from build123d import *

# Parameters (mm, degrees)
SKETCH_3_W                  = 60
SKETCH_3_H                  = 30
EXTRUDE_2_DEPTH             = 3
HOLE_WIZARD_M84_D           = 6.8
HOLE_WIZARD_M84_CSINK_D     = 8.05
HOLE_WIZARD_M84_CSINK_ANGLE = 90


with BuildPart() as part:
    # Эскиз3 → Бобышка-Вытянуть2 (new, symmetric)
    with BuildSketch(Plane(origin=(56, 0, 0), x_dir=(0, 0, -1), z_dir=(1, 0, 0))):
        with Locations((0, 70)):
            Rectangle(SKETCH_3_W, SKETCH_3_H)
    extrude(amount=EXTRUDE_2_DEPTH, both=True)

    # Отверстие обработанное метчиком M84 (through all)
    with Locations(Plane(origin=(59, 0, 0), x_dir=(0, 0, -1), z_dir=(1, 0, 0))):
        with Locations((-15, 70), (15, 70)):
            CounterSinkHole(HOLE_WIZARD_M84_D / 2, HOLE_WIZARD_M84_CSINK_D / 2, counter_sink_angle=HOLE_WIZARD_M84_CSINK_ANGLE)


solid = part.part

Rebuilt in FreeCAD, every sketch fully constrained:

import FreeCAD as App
import Part
import Sketcher
from FreeCAD import Vector


def add_polygon(sketch, points):
    """Adds a closed chain of lines whose ends are joined by coincident constraints."""
    first, n = sketch.GeometryCount, len(points)
    for a, b in zip(points, points[1:] + points[:1]):
        sketch.addGeometry(Part.LineSegment(App.Vector(*a, 0), App.Vector(*b, 0)), False)
    for i in range(n):
        sketch.addConstraint(Sketcher.Constraint("Coincident", first + i, 2, first + (i + 1) % n, 1))

doc = App.newDocument("Part")
body = doc.addObject("PartDesign::Body", "Body")

# Sketch on YZ plane
sketch1 = doc.addObject("Sketcher::SketchObject", "Sketch")
body.addObject(sketch1)
sketch1.AttachmentSupport = (doc.YZ_Plane, [""])
sketch1.MapMode = "FlatFace"
sketch1.AttachmentOffset = App.Placement(Vector(0, 0, 56), App.Rotation())
add_polygon(sketch1, [(85, 30), (55, 30), (55, -30), (85, -30)])  # lines 0-3
sketch1.addConstraint([
    Sketcher.Constraint("Horizontal", 0),
    Sketcher.Constraint("Vertical", 1),
    Sketcher.Constraint("Horizontal", 2),
    Sketcher.Constraint("Vertical", 3),
    Sketcher.Constraint("DistanceX", 0, 2, 0, 1, 30.0),
    Sketcher.Constraint("DistanceY", 1, 2, 1, 1, 60.0),
    Sketcher.Constraint("DistanceX", -1, 1, 0, 2, 55.0),
    Sketcher.Constraint("DistanceY", -1, 1, 0, 2, 30.0),
])
pad1 = doc.addObject("PartDesign::Pad", "Pad")
body.addObject(pad1)
pad1.Profile = sketch1
pad1.Length = 6
pad1.Midplane = True

# Sketch on YZ plane
sketch2 = doc.addObject("Sketcher::SketchObject", "Sketch001")
body.addObject(sketch2)
sketch2.AttachmentSupport = (doc.YZ_Plane, [""])
sketch2.MapMode = "FlatFace"
sketch2.AttachmentOffset = App.Placement(Vector(0, 0, 59), App.Rotation())
sketch2.addGeometry([
    Part.Circle(Vector(70, 15, 0), Vector(0, 0, 1), 3.4),
    Part.Circle(Vector(70, -15, 0), Vector(0, 0, 1), 3.4),
], False)
sketch2.addConstraint([
    Sketcher.Constraint("Equal", 0, 1),
    Sketcher.Constraint("Symmetric", 0, 3, 1, 3, -1),
    Sketcher.Constraint("Diameter", 0, 6.8),
    Sketcher.Constraint("DistanceX", -1, 1, 0, 3, 70.0),
    Sketcher.Constraint("DistanceY", -1, 1, 0, 3, 15.0),
])
doc.recompute()
hole = doc.addObject("PartDesign::Hole", "Hole")
body.addObject(hole)
hole.Profile = sketch2
hole.ThreadType = "None"
hole.Diameter = 6.8
hole.DepthType = "ThroughAll"
hole.HoleCutType = "Countersink"
hole.HoleCutDiameter = 8.05
hole.HoleCutCountersinkAngle = 90

doc.recompute()
